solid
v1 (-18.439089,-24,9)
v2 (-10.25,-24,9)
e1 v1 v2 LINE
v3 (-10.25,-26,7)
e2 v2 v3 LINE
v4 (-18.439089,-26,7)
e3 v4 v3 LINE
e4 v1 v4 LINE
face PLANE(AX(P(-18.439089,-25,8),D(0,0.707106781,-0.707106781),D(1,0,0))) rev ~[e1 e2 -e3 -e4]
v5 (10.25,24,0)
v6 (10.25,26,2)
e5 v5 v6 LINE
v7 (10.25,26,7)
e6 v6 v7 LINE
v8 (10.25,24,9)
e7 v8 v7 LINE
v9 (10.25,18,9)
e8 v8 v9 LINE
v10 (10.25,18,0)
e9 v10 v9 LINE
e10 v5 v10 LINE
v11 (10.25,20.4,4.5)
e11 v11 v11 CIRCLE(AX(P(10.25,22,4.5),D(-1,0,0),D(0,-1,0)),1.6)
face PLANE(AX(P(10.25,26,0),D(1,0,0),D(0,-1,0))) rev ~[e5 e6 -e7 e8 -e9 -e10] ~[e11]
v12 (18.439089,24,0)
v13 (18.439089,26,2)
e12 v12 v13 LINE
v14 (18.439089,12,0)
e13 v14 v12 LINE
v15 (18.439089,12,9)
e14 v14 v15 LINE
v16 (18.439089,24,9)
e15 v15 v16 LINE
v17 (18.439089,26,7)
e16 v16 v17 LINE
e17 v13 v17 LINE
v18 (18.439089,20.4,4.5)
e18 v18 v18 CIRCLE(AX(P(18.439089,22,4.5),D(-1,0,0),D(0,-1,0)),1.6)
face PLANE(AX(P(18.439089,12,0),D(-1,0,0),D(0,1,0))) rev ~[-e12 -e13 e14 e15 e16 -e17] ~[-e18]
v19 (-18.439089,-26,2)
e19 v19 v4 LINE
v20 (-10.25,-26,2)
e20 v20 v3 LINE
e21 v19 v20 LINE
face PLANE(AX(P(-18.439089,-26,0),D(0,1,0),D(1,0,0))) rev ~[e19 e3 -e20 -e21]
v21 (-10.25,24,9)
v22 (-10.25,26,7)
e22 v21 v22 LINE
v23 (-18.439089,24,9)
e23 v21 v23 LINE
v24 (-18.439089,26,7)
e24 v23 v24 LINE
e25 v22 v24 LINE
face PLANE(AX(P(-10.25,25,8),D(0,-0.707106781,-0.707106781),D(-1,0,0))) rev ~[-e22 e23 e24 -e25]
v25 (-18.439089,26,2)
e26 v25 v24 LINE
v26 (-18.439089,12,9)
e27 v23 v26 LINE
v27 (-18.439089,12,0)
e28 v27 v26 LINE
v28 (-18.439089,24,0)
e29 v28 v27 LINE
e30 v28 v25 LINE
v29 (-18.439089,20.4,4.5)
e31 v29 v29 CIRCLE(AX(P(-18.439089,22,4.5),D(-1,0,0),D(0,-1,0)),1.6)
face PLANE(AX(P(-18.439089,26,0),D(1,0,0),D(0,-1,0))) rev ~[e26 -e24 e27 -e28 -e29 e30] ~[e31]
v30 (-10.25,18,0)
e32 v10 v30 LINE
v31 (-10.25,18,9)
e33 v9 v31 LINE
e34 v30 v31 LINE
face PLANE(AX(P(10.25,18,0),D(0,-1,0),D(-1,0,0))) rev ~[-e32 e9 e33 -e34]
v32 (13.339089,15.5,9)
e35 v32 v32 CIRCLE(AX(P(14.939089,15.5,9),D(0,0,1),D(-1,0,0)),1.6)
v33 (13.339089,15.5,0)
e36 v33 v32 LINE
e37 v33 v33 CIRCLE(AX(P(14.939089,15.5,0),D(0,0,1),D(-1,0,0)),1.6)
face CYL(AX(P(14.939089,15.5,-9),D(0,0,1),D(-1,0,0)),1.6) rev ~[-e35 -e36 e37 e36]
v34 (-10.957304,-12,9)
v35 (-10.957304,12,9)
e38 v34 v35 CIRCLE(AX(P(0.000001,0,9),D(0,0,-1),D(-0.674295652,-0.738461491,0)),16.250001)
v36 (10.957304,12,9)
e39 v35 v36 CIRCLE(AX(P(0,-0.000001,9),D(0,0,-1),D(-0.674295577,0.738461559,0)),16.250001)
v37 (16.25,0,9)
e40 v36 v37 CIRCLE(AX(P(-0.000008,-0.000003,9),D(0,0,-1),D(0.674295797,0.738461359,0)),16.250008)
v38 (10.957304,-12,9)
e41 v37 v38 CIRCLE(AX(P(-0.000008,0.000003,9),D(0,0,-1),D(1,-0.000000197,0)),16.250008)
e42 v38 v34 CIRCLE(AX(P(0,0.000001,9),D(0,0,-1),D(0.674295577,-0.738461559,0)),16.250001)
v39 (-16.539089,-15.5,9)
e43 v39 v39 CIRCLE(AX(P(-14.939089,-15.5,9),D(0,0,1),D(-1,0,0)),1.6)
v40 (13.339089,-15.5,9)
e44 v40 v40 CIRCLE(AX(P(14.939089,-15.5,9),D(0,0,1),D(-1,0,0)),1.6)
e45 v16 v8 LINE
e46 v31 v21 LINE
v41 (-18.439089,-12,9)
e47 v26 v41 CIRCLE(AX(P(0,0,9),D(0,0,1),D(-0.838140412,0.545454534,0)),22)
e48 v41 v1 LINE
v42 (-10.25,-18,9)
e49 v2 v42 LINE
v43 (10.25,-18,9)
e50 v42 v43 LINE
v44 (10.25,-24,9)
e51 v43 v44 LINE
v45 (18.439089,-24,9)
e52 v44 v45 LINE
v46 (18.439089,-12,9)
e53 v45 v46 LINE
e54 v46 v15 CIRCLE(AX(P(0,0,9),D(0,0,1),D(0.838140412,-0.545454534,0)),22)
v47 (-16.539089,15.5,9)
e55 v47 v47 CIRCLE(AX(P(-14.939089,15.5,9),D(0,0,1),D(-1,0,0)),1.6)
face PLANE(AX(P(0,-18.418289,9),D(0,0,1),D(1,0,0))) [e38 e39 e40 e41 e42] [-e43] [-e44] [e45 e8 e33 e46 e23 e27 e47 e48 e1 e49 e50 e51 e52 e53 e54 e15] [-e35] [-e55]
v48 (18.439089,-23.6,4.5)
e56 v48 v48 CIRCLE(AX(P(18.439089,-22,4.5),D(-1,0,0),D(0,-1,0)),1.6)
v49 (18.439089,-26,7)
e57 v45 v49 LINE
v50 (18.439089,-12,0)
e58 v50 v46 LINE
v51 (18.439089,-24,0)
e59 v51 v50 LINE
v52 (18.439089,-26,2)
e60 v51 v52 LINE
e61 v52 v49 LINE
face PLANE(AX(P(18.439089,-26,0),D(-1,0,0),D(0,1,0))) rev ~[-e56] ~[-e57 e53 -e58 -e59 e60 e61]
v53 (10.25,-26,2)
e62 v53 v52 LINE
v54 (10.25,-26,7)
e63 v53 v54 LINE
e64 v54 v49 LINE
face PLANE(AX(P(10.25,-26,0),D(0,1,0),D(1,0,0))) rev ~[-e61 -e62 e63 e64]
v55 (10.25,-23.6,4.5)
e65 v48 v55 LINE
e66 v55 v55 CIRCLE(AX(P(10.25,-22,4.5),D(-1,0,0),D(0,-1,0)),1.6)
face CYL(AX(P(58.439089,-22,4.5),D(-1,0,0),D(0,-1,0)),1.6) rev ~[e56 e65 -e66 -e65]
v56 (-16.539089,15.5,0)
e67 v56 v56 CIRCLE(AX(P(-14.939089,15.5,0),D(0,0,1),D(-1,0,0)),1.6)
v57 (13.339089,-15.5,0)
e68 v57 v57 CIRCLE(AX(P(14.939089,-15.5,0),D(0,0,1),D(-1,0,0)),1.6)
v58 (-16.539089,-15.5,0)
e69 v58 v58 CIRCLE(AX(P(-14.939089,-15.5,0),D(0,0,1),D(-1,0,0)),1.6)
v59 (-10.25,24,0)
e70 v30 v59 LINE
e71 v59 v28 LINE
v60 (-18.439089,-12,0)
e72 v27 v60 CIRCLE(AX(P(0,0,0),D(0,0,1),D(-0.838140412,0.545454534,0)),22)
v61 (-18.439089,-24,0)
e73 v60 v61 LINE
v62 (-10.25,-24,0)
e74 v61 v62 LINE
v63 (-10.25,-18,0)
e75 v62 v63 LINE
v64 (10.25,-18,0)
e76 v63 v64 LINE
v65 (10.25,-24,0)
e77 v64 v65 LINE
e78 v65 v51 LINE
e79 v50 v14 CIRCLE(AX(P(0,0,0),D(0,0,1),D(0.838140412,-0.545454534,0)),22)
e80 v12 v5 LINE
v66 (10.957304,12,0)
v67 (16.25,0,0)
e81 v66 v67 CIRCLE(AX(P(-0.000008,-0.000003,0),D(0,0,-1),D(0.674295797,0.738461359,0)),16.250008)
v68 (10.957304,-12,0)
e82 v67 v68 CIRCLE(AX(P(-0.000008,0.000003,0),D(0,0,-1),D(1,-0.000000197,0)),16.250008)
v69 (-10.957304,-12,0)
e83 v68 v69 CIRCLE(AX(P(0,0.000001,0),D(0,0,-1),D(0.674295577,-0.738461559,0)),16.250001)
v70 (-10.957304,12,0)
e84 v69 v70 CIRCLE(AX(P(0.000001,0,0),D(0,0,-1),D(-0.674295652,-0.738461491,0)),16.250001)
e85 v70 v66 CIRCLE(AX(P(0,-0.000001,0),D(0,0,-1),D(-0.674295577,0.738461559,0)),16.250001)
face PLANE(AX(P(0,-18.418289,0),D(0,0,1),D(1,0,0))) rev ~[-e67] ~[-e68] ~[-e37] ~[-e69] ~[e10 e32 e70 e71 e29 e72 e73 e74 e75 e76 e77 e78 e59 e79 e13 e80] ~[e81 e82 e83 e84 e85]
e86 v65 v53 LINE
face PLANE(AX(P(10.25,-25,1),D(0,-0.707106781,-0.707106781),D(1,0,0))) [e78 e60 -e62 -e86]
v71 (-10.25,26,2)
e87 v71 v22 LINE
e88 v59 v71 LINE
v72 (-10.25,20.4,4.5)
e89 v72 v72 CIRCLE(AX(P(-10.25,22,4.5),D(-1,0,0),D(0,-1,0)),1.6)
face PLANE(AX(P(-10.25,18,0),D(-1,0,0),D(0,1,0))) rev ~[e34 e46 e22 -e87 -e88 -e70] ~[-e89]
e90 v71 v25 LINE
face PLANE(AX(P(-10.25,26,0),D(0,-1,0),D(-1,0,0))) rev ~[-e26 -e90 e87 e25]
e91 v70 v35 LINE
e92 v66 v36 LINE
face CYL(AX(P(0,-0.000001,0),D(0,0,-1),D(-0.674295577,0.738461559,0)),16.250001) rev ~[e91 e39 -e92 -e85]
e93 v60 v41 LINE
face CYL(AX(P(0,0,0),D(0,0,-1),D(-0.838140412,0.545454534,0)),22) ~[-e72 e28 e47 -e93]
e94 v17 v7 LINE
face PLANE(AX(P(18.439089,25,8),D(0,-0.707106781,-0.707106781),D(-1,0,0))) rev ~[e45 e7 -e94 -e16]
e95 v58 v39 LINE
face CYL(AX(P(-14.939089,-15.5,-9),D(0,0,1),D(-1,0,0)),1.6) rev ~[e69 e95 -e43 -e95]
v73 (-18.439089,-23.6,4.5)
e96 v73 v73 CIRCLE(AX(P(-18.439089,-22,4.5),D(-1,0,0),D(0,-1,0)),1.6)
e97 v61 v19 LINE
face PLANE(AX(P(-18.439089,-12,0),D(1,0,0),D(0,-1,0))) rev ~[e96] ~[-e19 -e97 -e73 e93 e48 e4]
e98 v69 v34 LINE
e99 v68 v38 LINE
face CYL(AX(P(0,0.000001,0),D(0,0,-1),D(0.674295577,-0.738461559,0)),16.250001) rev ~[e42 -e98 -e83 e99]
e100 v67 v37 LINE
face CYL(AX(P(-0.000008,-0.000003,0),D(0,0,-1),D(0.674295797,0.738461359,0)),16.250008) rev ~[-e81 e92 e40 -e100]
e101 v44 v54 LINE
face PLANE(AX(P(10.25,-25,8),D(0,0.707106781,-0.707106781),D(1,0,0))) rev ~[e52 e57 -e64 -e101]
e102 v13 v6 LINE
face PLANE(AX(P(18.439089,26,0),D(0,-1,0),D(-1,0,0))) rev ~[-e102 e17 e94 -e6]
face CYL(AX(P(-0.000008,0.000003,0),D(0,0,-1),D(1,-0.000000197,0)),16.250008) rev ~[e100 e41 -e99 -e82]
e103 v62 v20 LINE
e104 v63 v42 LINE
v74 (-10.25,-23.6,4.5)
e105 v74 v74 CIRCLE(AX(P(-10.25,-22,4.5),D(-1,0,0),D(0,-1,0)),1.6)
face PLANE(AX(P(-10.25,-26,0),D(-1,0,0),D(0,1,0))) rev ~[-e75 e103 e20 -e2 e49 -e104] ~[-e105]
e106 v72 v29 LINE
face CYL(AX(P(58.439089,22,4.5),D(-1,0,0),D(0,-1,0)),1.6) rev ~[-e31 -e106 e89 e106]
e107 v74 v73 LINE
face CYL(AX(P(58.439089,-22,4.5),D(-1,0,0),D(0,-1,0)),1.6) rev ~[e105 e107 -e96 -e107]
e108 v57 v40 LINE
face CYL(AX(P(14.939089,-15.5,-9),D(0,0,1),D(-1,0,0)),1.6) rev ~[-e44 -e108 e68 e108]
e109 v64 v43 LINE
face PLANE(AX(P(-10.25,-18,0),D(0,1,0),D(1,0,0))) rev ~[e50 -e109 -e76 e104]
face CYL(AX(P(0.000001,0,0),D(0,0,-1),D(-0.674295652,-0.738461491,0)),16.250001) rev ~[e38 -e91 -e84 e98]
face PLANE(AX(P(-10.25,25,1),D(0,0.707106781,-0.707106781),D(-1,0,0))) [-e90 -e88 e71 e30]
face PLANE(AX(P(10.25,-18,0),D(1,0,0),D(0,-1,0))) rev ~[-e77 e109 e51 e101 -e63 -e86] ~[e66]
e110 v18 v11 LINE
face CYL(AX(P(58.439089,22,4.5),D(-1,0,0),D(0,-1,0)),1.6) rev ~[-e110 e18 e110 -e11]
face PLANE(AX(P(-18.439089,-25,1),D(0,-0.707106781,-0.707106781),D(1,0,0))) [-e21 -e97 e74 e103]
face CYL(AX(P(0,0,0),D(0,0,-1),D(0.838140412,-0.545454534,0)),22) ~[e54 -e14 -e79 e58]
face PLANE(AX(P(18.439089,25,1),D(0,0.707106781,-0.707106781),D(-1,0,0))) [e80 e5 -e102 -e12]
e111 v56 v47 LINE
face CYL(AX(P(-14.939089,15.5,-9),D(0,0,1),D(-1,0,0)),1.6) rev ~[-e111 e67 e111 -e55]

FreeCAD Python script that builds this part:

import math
import FreeCAD as App
import Part
import Sketcher


def edges_at(feature, points):
    """Names of the edges that pass closest to the given points."""
    edges = feature.Shape.Edges
    near = lambda p: min(range(len(edges)), key=lambda i: edges[i].distToShape(Part.Vertex(*p))[0])
    return sorted({f"Edge{near(p) + 1}" for p in points})

doc = App.newDocument("Part")
params = doc.addObject("Spreadsheet::Sheet", "Params")
for row, (alias, value) in enumerate([
    ("sketch1_radius", "22 mm"),
    ("sketch1_height", "14 mm"),
    ("sketch1_height2", "8 mm"),
    ("sketch1_radius2", "16.250001 mm"),
    ("sketch1_width", "20.5 mm"),
    ("pad1_length", "9 mm"),
    ("sketch2_diameter", "3.2 mm"),
    ("hole_diameter", "3.2 mm"),
    ("hole_depth", "9 mm"),
    ("sketch3_diameter", "3.2 mm"),
    ("hole2_diameter", "3.2 mm"),
    ("hole2_depth", "40 mm"),
    ("chamfer_size", "2 mm"),
], start=1):
    params.set(f"A{row}", alias)
    params.set(f"B{row}", "=" + value)
    params.setAlias(f"B{row}", alias)

body = doc.addObject("PartDesign::Body", "Body")

# Sketch on XY plane
sketch1 = body.newObject("Sketcher::SketchObject", "Sketch")
sketch1.AttachmentSupport = (doc.getObject("XY_Plane"), [""])
sketch1.MapMode = "FlatFace"
sketch1.addGeometry([
    Part.LineSegment(App.Vector(18.439089, 12, 0), App.Vector(18.439089, 26, 0)),  # 0
    Part.LineSegment(App.Vector(18.439089, 26, 0), App.Vector(10.25, 26, 0)),  # 1
    Part.LineSegment(App.Vector(10.25, 26, 0), App.Vector(10.25, 18, 0)),  # 2
    Part.LineSegment(App.Vector(10.25, 18, 0), App.Vector(-10.25, 18, 0)),  # 3
    Part.LineSegment(App.Vector(-10.25, 18, 0), App.Vector(-10.25, 26, 0)),  # 4
    Part.LineSegment(App.Vector(-10.25, 26, 0), App.Vector(-18.439089, 26, 0)),  # 5
    Part.LineSegment(App.Vector(-18.439089, 26, 0), App.Vector(-18.439089, 12, 0)),  # 6
    Part.ArcOfCircle(Part.Circle(App.Vector(0, 0, 0), App.Vector(0, 0, 1), 22), math.radians(146.94427), math.radians(213.05573)),  # 7
    Part.LineSegment(App.Vector(-18.439089, -12, 0), App.Vector(-18.439089, -26, 0)),  # 8
    Part.LineSegment(App.Vector(-18.439089, -26, 0), App.Vector(-10.25, -26, 0)),  # 9
    Part.LineSegment(App.Vector(-10.25, -26, 0), App.Vector(-10.25, -18, 0)),  # 10
    Part.LineSegment(App.Vector(-10.25, -18, 0), App.Vector(10.25, -18, 0)),  # 11
    Part.LineSegment(App.Vector(10.25, -18, 0), App.Vector(10.25, -26, 0)),  # 12
    Part.LineSegment(App.Vector(10.25, -26, 0), App.Vector(18.439089, -26, 0)),  # 13
    Part.LineSegment(App.Vector(18.439089, -26, 0), App.Vector(18.439089, -12, 0)),  # 14
    Part.ArcOfCircle(Part.Circle(App.Vector(0, 0, 0), App.Vector(0, 0, 1), 22), math.radians(-33.05573), math.radians(33.05573)),  # 15
    Part.ArcOfCircle(Part.Circle(App.Vector(0, 0.000001, 0), App.Vector(0, 0, 1), 16.250001), math.radians(-132.399472), math.radians(-47.600528)),  # 16
    Part.ArcOfCircle(Part.Circle(App.Vector(0.000001, 0, 0), App.Vector(0, 0, 1), 16.250001), math.radians(132.399477), math.radians(227.600523)),  # 17
    Part.ArcOfCircle(Part.Circle(App.Vector(0, -0.000001, 0), App.Vector(0, 0, 1), 16.250001), math.radians(47.600528), math.radians(132.399472)),  # 18
    Part.ArcOfCircle(Part.Circle(App.Vector(-0.000008, -0.000003, 0), App.Vector(0, 0, 1), 16.250008), math.radians(0.000011), math.radians(47.600511)),  # 19
    Part.ArcOfCircle(Part.Circle(App.Vector(-0.000008, 0.000003, 0), App.Vector(0, 0, 1), 16.250008), math.radians(-47.600511), math.radians(-0.000011)),  # 20
], False)
sketch1.addConstraint([
    Sketcher.Constraint("Coincident", 0, 2, 1, 1),
    Sketcher.Constraint("Coincident", 1, 2, 2, 1),
    Sketcher.Constraint("Coincident", 2, 2, 3, 1),
    Sketcher.Constraint("Coincident", 3, 2, 4, 1),
    Sketcher.Constraint("Coincident", 4, 2, 5, 1),
    Sketcher.Constraint("Coincident", 5, 2, 6, 1),
    Sketcher.Constraint("Coincident", 6, 2, 7, 1),
    Sketcher.Constraint("Coincident", 7, 2, 8, 1),
    Sketcher.Constraint("Coincident", 8, 2, 9, 1),
    Sketcher.Constraint("Coincident", 9, 2, 10, 1),
    Sketcher.Constraint("Coincident", 10, 2, 11, 1),
    Sketcher.Constraint("Coincident", 11, 2, 12, 1),
    Sketcher.Constraint("Coincident", 12, 2, 13, 1),
    Sketcher.Constraint("Coincident", 13, 2, 14, 1),
    Sketcher.Constraint("Coincident", 14, 2, 15, 1),
    Sketcher.Constraint("Coincident", 15, 2, 0, 1),
    Sketcher.Constraint("Tangent", 16, 1, 17, 2),
    Sketcher.Constraint("Tangent", 17, 1, 18, 2),
    Sketcher.Constraint("Tangent", 18, 1, 19, 2),
    Sketcher.Constraint("Tangent", 19, 1, 20, 2),
    Sketcher.Constraint("Tangent", 20, 1, 16, 2),
    Sketcher.Constraint("Vertical", 0),
    Sketcher.Constraint("Horizontal", 1),
    Sketcher.Constraint("Vertical", 2),
    Sketcher.Constraint("Horizontal", 3),
    Sketcher.Constraint("Vertical", 4),
    Sketcher.Constraint("Horizontal", 5),
    Sketcher.Constraint("Vertical", 6),
    Sketcher.Constraint("Vertical", 8),
    Sketcher.Constraint("Horizontal", 9),
    Sketcher.Constraint("Vertical", 10),
    Sketcher.Constraint("Horizontal", 11),
    Sketcher.Constraint("Vertical", 12),
    Sketcher.Constraint("Horizontal", 13),
    Sketcher.Constraint("Vertical", 14),
    Sketcher.Constraint("Coincident", 7, 3, -1, 1),
    Sketcher.Constraint("Coincident", 15, 3, -1, 1),
    Sketcher.Constraint("Coincident", 16, 3, -1, 1),
    Sketcher.Constraint("Coincident", 18, 3, -1, 1),
    Sketcher.Constraint("Equal", 7, 15),
    Sketcher.Constraint("Symmetric", 0, 2, 8, 2, -1, 1),
    Sketcher.Constraint("Symmetric", 2, 2, 10, 2, -1, 1),
    Sketcher.Constraint("Symmetric", 4, 2, 12, 2, -1, 1),
    Sketcher.Constraint("Symmetric", 1, 2, 4, 2, -2),
    Sketcher.Constraint("PointOnObject", 19, 1, -1),
    Sketcher.Constraint("Horizontal", 7, 2, 14, 2),
    Sketcher.Constraint("Horizontal", 6, 2, 15, 2),
    Sketcher.Constraint("Horizontal", 14, 2, 16, 1),
    Sketcher.Constraint("Horizontal", 15, 2, 17, 1),
    Sketcher.Constraint("Horizontal", 17, 1, 18, 1),
    Sketcher.Constraint("Horizontal", 16, 1, 20, 1),
    Sketcher.Constraint("Radius", 7, 22.0),
    Sketcher.Constraint("DistanceY", 0, 1, 0, 2, 14.0),
    Sketcher.Constraint("DistanceY", 2, 2, 2, 1, 8.0),
    Sketcher.Constraint("Radius", 16, 16.250001),
    Sketcher.Constraint("DistanceX", 3, 2, 3, 1, 20.5),
    Sketcher.Constraint("DistanceY", -1, 1, 0, 2, 26.0),
])
sketch1.setExpression("Constraints[51]", "Params.sketch1_radius")
sketch1.setExpression("Constraints[52]", "Params.sketch1_height")
sketch1.setExpression("Constraints[53]", "Params.sketch1_height2")
sketch1.setExpression("Constraints[54]", "Params.sketch1_radius2")
sketch1.setExpression("Constraints[55]", "Params.sketch1_width")
pad1 = body.newObject("PartDesign::Pad", "Pad")
pad1.Profile = sketch1
pad1.setExpression("Length", "Params.pad1_length")

# Sketch on XY plane
sketch2 = body.newObject("Sketcher::SketchObject", "Sketch001")
sketch2.AttachmentSupport = (doc.getObject("XY_Plane"), [""])
sketch2.MapMode = "FlatFace"
sketch2.addGeometry([
    Part.Circle(App.Vector(-14.939089, 15.5, 0), App.Vector(0, 0, 1), 1.6),
    Part.Circle(App.Vector(14.939089, 15.5, 0), App.Vector(0, 0, 1), 1.6),
    Part.Circle(App.Vector(14.939089, -15.5, 0), App.Vector(0, 0, 1), 1.6),
    Part.Circle(App.Vector(-14.939089, -15.5, 0), App.Vector(0, 0, 1), 1.6),
], False)
sketch2.addConstraint([
    Sketcher.Constraint("Equal", 0, 1),
    Sketcher.Constraint("Equal", 1, 2),
    Sketcher.Constraint("Equal", 2, 3),
    Sketcher.Constraint("Symmetric", 0, 3, 2, 3, -1, 1),
    Sketcher.Constraint("Symmetric", 1, 3, 3, 3, -1, 1),
    Sketcher.Constraint("Symmetric", 0, 3, 1, 3, -2),
    Sketcher.Constraint("Diameter", 0, 3.2),
    Sketcher.Constraint("DistanceY", 2, 3, 1, 3, 31.0),
    Sketcher.Constraint("DistanceX", 0, 3, -1, 1, 14.939089),
])
sketch2.setExpression("Constraints[6]", "Params.sketch2_diameter")
doc.recompute()
hole = body.newObject("PartDesign::Hole", "Hole")
hole.Profile = sketch2
hole.ThreadType = "None"
hole.setExpression("Diameter", "Params.hole_diameter")
hole.DepthType = "Dimension"
hole.setExpression("Depth", "Params.hole_depth")
hole.DrillPoint = "Flat"
hole.Reversed = True

# Sketch on YZ plane
sketch3 = body.newObject("Sketcher::SketchObject", "Sketch002")
sketch3.AttachmentSupport = (doc.getObject("YZ_Plane"), [""])
sketch3.MapMode = "FlatFace"
sketch3.AttachmentOffset = App.Placement(App.Vector(0, 0, 18.439089), App.Rotation())
sketch3.addGeometry([
    Part.Circle(App.Vector(-22, 4.5, 0), App.Vector(0, 0, 1), 1.6),
    Part.Circle(App.Vector(22, 4.5, 0), App.Vector(0, 0, 1), 1.6),
], False)
sketch3.addConstraint([
    Sketcher.Constraint("Equal", 0, 1),
    Sketcher.Constraint("Symmetric", 0, 3, 1, 3, -2),
    Sketcher.Constraint("Diameter", 0, 3.2),
    Sketcher.Constraint("DistanceX", 0, 3, -1, 1, 22.0),
    Sketcher.Constraint("DistanceY", -1, 1, 0, 3, 4.5),
])
sketch3.setExpression("Constraints[2]", "Params.sketch3_diameter")
doc.recompute()
hole2 = body.newObject("PartDesign::Hole", "Hole001")
hole2.Profile = sketch3
hole2.ThreadType = "None"
hole2.setExpression("Diameter", "Params.hole2_diameter")
hole2.DepthType = "Dimension"
hole2.setExpression("Depth", "Params.hole2_depth")
hole2.DrillPoint = "Flat"
doc.recompute()

chamfer = body.newObject("PartDesign::Chamfer", "Chamfer")
chamfer.Base = (hole2, edges_at(hole2, [
    (14.345, 26, 9),
    (14.345, 26, 0),
    (-14.345, 26, 9),
    (-14.345, 26, 0),
    (-14.345, -26, 9),
    (14.345, -26, 9),
    (14.345, -26, 0),
    (-14.345, -26, 0),
]))
chamfer.setExpression("Size", "Params.chamfer_size")

doc.recompute()
